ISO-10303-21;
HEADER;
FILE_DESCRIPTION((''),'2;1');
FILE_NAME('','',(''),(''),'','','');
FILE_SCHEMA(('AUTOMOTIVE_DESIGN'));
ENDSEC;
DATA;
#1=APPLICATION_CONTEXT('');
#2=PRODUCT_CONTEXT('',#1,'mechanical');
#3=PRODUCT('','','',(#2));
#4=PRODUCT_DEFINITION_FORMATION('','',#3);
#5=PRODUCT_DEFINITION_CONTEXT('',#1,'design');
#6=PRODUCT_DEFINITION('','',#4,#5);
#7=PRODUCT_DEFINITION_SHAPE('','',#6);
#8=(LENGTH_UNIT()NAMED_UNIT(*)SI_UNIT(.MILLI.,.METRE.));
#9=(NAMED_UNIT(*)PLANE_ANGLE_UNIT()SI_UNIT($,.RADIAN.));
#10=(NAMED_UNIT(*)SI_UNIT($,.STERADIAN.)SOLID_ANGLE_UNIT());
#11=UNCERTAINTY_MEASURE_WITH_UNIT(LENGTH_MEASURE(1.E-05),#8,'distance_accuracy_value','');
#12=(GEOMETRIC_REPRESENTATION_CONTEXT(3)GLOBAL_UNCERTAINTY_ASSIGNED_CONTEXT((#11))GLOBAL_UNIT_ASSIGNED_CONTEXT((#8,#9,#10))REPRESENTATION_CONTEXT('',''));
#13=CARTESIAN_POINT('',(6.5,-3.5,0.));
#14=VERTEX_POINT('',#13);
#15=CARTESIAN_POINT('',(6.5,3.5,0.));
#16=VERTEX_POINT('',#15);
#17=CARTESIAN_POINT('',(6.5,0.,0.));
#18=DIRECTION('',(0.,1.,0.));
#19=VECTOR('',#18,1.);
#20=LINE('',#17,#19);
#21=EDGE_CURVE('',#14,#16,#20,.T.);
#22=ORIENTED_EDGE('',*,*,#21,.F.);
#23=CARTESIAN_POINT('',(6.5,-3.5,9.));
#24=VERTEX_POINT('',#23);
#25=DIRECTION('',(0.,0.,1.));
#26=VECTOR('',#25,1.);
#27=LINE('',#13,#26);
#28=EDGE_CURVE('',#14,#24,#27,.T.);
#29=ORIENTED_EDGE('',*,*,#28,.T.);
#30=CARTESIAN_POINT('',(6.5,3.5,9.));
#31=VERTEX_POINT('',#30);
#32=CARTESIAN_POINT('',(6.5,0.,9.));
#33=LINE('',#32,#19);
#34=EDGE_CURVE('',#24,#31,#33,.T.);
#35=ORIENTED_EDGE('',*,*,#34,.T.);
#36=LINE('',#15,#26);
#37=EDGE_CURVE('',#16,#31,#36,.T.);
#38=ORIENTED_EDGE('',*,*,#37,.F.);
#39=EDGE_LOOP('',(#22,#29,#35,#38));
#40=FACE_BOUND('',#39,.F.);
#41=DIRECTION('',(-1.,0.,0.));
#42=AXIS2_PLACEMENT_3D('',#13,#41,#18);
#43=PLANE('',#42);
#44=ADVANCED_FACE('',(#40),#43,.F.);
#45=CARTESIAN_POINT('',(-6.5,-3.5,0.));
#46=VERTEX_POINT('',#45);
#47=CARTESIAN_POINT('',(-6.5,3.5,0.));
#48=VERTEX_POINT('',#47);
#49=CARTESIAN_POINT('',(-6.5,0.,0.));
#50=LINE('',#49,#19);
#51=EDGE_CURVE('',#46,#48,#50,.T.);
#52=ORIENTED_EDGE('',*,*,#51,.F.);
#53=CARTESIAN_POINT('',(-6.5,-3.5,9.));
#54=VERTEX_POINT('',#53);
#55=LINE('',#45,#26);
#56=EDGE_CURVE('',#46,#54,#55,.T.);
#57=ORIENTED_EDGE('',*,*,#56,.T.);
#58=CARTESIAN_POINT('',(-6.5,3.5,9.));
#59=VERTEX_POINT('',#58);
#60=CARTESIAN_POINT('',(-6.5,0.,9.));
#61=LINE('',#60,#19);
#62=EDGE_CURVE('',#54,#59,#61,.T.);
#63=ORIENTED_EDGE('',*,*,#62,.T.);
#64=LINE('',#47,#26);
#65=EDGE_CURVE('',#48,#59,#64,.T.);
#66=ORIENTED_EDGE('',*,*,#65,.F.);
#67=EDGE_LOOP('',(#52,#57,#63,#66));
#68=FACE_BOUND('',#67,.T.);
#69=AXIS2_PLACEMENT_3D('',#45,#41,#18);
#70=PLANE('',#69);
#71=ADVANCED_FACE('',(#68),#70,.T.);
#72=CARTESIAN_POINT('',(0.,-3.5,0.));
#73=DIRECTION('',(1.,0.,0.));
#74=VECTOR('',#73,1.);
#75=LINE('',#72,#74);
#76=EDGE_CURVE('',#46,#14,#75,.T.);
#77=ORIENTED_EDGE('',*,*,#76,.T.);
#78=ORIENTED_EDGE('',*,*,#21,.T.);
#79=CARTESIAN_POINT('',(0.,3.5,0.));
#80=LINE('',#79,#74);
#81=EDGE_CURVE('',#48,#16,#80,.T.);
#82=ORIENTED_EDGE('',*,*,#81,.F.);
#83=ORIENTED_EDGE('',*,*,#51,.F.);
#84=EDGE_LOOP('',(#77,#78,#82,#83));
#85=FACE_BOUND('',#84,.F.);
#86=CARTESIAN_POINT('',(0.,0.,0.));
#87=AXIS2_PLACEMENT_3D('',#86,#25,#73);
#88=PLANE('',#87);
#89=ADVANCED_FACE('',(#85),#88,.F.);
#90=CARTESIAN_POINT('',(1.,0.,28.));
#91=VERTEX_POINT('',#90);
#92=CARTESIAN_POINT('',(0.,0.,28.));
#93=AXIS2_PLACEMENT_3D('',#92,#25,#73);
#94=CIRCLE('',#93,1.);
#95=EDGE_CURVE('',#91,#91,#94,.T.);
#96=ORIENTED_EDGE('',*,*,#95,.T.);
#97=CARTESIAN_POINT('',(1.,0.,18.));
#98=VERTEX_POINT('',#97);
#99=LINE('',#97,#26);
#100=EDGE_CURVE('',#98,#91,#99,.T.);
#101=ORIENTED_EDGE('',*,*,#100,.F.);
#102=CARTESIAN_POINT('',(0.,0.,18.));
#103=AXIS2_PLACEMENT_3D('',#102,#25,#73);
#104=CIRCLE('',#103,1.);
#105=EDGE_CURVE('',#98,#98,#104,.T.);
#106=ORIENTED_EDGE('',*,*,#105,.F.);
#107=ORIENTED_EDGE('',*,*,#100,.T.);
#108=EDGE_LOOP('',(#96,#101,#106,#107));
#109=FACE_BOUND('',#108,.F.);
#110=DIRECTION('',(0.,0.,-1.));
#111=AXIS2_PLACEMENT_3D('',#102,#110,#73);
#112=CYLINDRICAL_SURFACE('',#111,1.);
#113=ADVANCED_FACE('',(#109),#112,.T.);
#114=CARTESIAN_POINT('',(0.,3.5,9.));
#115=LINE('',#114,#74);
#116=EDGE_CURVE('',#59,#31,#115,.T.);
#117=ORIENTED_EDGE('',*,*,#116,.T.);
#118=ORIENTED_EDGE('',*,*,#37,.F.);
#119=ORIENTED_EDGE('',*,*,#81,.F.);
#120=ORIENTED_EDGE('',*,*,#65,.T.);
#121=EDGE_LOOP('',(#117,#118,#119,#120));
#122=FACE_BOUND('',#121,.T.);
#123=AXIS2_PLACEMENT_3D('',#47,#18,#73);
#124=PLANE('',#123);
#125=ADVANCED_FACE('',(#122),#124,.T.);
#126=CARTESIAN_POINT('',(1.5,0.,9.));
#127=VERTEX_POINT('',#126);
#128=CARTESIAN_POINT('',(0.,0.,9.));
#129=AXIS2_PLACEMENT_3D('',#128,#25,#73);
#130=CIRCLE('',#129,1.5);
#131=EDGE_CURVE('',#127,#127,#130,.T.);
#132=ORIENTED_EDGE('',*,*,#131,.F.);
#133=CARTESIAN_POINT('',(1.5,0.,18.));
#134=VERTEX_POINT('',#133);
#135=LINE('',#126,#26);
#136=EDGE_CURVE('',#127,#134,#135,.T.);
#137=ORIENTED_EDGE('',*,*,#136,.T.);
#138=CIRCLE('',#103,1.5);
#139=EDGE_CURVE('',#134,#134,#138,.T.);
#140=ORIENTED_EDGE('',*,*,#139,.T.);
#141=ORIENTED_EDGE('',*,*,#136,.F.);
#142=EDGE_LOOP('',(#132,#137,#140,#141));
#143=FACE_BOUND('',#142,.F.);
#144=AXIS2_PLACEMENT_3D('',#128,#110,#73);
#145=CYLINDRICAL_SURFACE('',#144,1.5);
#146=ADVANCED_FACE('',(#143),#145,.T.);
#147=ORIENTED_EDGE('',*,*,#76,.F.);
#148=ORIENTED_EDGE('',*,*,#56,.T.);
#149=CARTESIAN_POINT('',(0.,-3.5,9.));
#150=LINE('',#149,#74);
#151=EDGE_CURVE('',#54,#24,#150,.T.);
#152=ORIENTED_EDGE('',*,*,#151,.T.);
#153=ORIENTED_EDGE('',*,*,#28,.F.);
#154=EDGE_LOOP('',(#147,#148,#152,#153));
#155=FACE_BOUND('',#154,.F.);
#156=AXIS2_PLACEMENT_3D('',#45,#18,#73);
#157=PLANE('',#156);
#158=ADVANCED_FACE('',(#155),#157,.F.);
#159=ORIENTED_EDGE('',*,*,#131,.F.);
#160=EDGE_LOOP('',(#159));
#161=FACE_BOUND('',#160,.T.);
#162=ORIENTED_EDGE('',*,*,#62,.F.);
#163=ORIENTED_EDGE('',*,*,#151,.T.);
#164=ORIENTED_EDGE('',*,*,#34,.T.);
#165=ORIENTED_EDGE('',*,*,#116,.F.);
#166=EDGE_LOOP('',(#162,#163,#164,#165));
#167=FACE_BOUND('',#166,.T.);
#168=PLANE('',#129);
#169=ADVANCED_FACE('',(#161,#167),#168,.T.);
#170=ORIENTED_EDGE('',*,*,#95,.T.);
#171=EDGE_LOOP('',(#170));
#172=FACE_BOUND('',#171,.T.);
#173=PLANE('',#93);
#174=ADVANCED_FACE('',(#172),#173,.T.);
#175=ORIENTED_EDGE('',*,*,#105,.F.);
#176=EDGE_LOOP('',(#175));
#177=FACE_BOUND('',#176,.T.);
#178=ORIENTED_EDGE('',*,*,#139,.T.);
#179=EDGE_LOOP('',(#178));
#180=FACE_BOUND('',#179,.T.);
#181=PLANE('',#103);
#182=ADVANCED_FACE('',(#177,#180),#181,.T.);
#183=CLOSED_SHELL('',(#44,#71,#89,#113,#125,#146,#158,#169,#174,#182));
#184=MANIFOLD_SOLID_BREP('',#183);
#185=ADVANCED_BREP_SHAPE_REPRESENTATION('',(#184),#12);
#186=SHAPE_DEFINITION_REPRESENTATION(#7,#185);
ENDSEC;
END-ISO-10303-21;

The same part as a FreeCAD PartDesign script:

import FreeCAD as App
import Part
import Sketcher

V = App.Vector

doc = App.newDocument("Part")
body = doc.addObject("PartDesign::Body", "Body")

sketch1 = body.newObject("Sketcher::SketchObject", "Sketch")
sketch1.AttachmentSupport = (doc.getObject("XY_Plane"), [""])
sketch1.MapMode = "FlatFace"
sketch1.addGeometry([
    Part.LineSegment(V(-6, 4, 0), V(-6, -4, 0)),
    Part.LineSegment(V(-6, -4, 0), V(6, -4, 0)),
    Part.LineSegment(V(6, -4, 0), V(6, 4, 0)),
    Part.LineSegment(V(6, 4, 0), V(-6, 4, 0)),
], False)
sketch1.addConstraint([
    Sketcher.Constraint("Coincident", 0, 2, 1, 1),
    Sketcher.Constraint("Coincident", 1, 2, 2, 1),
    Sketcher.Constraint("Coincident", 2, 2, 3, 1),
    Sketcher.Constraint("Coincident", 3, 2, 0, 1),
    Sketcher.Constraint("Vertical", 0),
    Sketcher.Constraint("Horizontal", 1),
    Sketcher.Constraint("Vertical", 2),
    Sketcher.Constraint("Horizontal", 3),
    Sketcher.Constraint("Symmetric", 0, 2, 2, 2, -1, 1),
    Sketcher.Constraint("DistanceX", 1, 1, 1, 2, 13.0),
    Sketcher.Constraint("DistanceY", 0, 2, 0, 1, 7.0),
])
pad1 = body.newObject("PartDesign::Pad", "Pad")
pad1.Profile = sketch1
pad1.Length = 9

sketch2 = body.newObject("Sketcher::SketchObject", "Sketch001")
sketch2.AttachmentSupport = (doc.getObject("XY_Plane"), [""])
sketch2.MapMode = "FlatFace"
sketch2.AttachmentOffset = App.Placement(V(0, 0, 9), App.Rotation())
sketch2.addGeometry(Part.Circle(V(0, 0, 0), V(0, 0, 1), 1.5), False)
sketch2.addConstraint([
    Sketcher.Constraint("Coincident", 0, 3, -1, 1),
    Sketcher.Constraint("Diameter", 0, 3.0),
])
pad2 = body.newObject("PartDesign::Pad", "Pad001")
pad2.Profile = sketch2
pad2.Length = 9

sketch3 = body.newObject("Sketcher::SketchObject", "Sketch002")
sketch3.AttachmentSupport = (doc.getObject("XY_Plane"), [""])
sketch3.MapMode = "FlatFace"
sketch3.AttachmentOffset = App.Placement(V(0, 0, 18), App.Rotation())
sketch3.addGeometry(Part.Circle(V(0, 0, 0), V(0, 0, 1), 1), False)
sketch3.addConstraint([
    Sketcher.Constraint("Coincident", 0, 3, -1, 1),
    Sketcher.Constraint("Diameter", 0, 2.0),
])
pad3 = body.newObject("PartDesign::Pad", "Pad002")
pad3.Profile = sketch3
pad3.Length = 10

doc.recompute()
